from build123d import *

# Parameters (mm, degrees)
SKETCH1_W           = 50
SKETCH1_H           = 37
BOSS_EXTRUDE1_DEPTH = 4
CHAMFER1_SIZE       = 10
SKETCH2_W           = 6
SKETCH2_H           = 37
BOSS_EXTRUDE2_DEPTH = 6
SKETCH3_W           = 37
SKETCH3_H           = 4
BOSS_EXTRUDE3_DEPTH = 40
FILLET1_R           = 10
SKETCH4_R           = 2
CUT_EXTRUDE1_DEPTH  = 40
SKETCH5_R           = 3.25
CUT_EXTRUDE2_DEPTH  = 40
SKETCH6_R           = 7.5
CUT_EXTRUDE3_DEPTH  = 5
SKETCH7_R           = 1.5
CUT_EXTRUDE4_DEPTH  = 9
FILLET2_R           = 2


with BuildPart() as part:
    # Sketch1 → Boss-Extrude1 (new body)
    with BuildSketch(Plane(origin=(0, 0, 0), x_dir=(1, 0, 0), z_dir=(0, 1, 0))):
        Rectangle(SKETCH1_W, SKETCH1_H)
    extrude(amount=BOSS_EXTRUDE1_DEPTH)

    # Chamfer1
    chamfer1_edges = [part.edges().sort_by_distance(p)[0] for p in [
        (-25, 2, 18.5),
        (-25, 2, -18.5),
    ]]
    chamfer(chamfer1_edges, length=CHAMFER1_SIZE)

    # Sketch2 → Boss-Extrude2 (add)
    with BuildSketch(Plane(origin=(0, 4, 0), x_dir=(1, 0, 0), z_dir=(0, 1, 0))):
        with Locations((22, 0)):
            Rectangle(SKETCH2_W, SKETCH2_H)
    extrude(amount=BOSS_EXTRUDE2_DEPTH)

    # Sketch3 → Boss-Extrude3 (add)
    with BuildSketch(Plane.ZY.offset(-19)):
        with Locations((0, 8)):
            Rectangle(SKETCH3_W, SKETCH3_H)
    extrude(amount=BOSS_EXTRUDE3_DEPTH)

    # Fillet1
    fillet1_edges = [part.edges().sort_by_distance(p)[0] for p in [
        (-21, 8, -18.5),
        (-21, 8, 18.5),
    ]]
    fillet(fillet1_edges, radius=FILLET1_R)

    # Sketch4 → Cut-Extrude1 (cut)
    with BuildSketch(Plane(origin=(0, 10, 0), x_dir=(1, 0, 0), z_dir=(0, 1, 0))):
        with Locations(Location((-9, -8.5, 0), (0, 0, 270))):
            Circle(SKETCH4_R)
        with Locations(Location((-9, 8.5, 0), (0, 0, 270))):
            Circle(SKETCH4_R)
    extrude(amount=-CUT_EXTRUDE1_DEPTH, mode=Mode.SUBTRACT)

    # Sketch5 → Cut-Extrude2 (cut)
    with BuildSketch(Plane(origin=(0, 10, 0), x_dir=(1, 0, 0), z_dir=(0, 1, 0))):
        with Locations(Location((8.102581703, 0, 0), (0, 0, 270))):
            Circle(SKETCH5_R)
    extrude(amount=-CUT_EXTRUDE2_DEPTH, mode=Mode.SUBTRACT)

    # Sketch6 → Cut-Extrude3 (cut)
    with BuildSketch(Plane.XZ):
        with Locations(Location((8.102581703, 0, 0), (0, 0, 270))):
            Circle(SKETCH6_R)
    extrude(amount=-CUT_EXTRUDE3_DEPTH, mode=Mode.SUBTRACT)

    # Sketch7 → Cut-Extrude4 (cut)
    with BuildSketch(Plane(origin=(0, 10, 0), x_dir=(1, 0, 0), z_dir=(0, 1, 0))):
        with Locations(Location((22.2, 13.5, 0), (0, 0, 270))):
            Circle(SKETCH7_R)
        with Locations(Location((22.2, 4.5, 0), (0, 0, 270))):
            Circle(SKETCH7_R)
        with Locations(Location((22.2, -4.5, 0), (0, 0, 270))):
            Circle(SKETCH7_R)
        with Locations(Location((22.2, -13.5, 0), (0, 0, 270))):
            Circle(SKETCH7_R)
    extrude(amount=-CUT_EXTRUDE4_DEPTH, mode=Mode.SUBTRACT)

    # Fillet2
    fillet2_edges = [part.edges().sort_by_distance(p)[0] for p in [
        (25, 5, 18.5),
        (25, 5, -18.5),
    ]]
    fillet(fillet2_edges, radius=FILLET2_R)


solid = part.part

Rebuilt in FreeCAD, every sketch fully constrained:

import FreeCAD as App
import Part
import Sketcher


def edges_at(feature, points):
    """Names of the edges that pass closest to the given points."""
    edges = feature.Shape.Edges
    near = lambda p: min(range(len(edges)), key=lambda i: edges[i].distToShape(Part.Vertex(*p))[0])
    return sorted({f"Edge{near(p) + 1}" for p in points})

doc = App.newDocument("Part")
body = doc.addObject("PartDesign::Body", "Body")

sketch1 = doc.addObject("Sketcher::SketchObject", "Sketch")
body.addObject(sketch1)
sketch1.AttachmentSupport = (doc.XZ_Plane, [""])
sketch1.MapMode = "FlatFace"
sketch1.addGeometry(Part.LineSegment(App.Vector(-25, -18.5, 0), App.Vector(-25, 18.5, 0)), False)
sketch1.addGeometry(Part.LineSegment(App.Vector(-25, 18.5, 0), App.Vector(25, 18.5, 0)), False)
sketch1.addGeometry(Part.LineSegment(App.Vector(25, 18.5, 0), App.Vector(25, -18.5, 0)), False)
sketch1.addGeometry(Part.LineSegment(App.Vector(25, -18.5, 0), App.Vector(-25, -18.5, 0)), False)
sketch1.addConstraint(Sketcher.Constraint("Coincident", 0, 2, 1, 1))
sketch1.addConstraint(Sketcher.Constraint("Coincident", 1, 2, 2, 1))
sketch1.addConstraint(Sketcher.Constraint("Coincident", 2, 2, 3, 1))
sketch1.addConstraint(Sketcher.Constraint("Coincident", 3, 2, 0, 1))
sketch1.addConstraint(Sketcher.Constraint("Vertical", 0))
sketch1.addConstraint(Sketcher.Constraint("Horizontal", 1))
sketch1.addConstraint(Sketcher.Constraint("Vertical", 2))
sketch1.addConstraint(Sketcher.Constraint("Horizontal", 3))
sketch1.addConstraint(Sketcher.Constraint("Symmetric", 0, 2, 2, 2, -1, 1))
sketch1.addConstraint(Sketcher.Constraint("DistanceX", 1, 1, 1, 2, 50.0))
sketch1.addConstraint(Sketcher.Constraint("DistanceY", 0, 1, 0, 2, 37.0))
pad1 = doc.addObject("PartDesign::Pad", "Pad")
body.addObject(pad1)
pad1.Profile = sketch1
pad1.Length = 4
pad1.Reversed = True
doc.recompute()

chamfer = doc.addObject("PartDesign::Chamfer", "Chamfer")
body.addObject(chamfer)
chamfer.Base = (pad1, edges_at(pad1, [(-25, 2, 18.5), (-25, 2, -18.5)]))
chamfer.Size = 10

sketch2 = doc.addObject("Sketcher::SketchObject", "Sketch001")
body.addObject(sketch2)
sketch2.AttachmentSupport = (doc.XZ_Plane, [""])
sketch2.MapMode = "FlatFace"
sketch2.AttachmentOffset = App.Placement(App.Vector(0, 0, -4), App.Rotation())
sketch2.addGeometry(Part.LineSegment(App.Vector(19, -18.5, 0), App.Vector(19, 18.5, 0)), False)
sketch2.addGeometry(Part.LineSegment(App.Vector(19, 18.5, 0), App.Vector(25, 18.5, 0)), False)
sketch2.addGeometry(Part.LineSegment(App.Vector(25, 18.5, 0), App.Vector(25, -18.5, 0)), False)
sketch2.addGeometry(Part.LineSegment(App.Vector(25, -18.5, 0), App.Vector(19, -18.5, 0)), False)
sketch2.addConstraint(Sketcher.Constraint("Coincident", 0, 2, 1, 1))
sketch2.addConstraint(Sketcher.Constraint("Coincident", 1, 2, 2, 1))
sketch2.addConstraint(Sketcher.Constraint("Coincident", 2, 2, 3, 1))
sketch2.addConstraint(Sketcher.Constraint("Coincident", 3, 2, 0, 1))
sketch2.addConstraint(Sketcher.Constraint("Vertical", 0))
sketch2.addConstraint(Sketcher.Constraint("Horizontal", 1))
sketch2.addConstraint(Sketcher.Constraint("Vertical", 2))
sketch2.addConstraint(Sketcher.Constraint("Horizontal", 3))
sketch2.addConstraint(Sketcher.Constraint("DistanceX", 1, 1, 1, 2, 6.0))
sketch2.addConstraint(Sketcher.Constraint("DistanceY", 0, 1, 0, 2, 37.0))
sketch2.addConstraint(Sketcher.Constraint("DistanceX", -1, 1, 0, 2, 19.0))
sketch2.addConstraint(Sketcher.Constraint("DistanceY", -1, 1, 0, 2, 18.5))
pad2 = doc.addObject("PartDesign::Pad", "Pad001")
body.addObject(pad2)
pad2.Profile = sketch2
pad2.Length = 6
pad2.Reversed = True

sketch3 = doc.addObject("Sketcher::SketchObject", "Sketch002")
body.addObject(sketch3)
sketch3.AttachmentSupport = (doc.YZ_Plane, [""])
sketch3.MapMode = "FlatFace"
sketch3.AttachmentOffset = App.Placement(App.Vector(0, 0, 19), App.Rotation())
sketch3.addGeometry(Part.LineSegment(App.Vector(10, -18.5, 0), App.Vector(6, -18.5, 0)), False)
sketch3.addGeometry(Part.LineSegment(App.Vector(6, -18.5, 0), App.Vector(6, 18.5, 0)), False)
sketch3.addGeometry(Part.LineSegment(App.Vector(6, 18.5, 0), App.Vector(10, 18.5, 0)), False)
sketch3.addGeometry(Part.LineSegment(App.Vector(10, 18.5, 0), App.Vector(10, -18.5, 0)), False)
sketch3.addConstraint(Sketcher.Constraint("Coincident", 0, 2, 1, 1))
sketch3.addConstraint(Sketcher.Constraint("Coincident", 1, 2, 2, 1))
sketch3.addConstraint(Sketcher.Constraint("Coincident", 2, 2, 3, 1))
sketch3.addConstraint(Sketcher.Constraint("Coincident", 3, 2, 0, 1))
sketch3.addConstraint(Sketcher.Constraint("Horizontal", 0))
sketch3.addConstraint(Sketcher.Constraint("Vertical", 1))
sketch3.addConstraint(Sketcher.Constraint("Horizontal", 2))
sketch3.addConstraint(Sketcher.Constraint("Vertical", 3))
sketch3.addConstraint(Sketcher.Constraint("DistanceX", 0, 2, 0, 1, 4.0))
sketch3.addConstraint(Sketcher.Constraint("DistanceY", 1, 1, 1, 2, 37.0))
sketch3.addConstraint(Sketcher.Constraint("DistanceX", -1, 1, 0, 2, 6.0))
sketch3.addConstraint(Sketcher.Constraint("DistanceY", 0, 2, -1, 1, 18.5))
pad3 = doc.addObject("PartDesign::Pad", "Pad002")
body.addObject(pad3)
pad3.Profile = sketch3
pad3.Length = 40
pad3.Reversed = True
doc.recompute()

fillet = doc.addObject("PartDesign::Fillet", "Fillet")
body.addObject(fillet)
fillet.Base = (pad3, edges_at(pad3, [(-21, 8, -18.5), (-21, 8, 18.5)]))
fillet.Radius = 10

sketch4 = doc.addObject("Sketcher::SketchObject", "Sketch003")
body.addObject(sketch4)
sketch4.AttachmentSupport = (doc.XZ_Plane, [""])
sketch4.MapMode = "FlatFace"
sketch4.AttachmentOffset = App.Placement(App.Vector(0, 0, -10), App.Rotation())
sketch4.addGeometry(Part.Circle(App.Vector(-9, 8.5, 0), App.Vector(0, 0, 1), 2), False)
sketch4.addGeometry(Part.Circle(App.Vector(-9, -8.5, 0), App.Vector(0, 0, 1), 2), False)
sketch4.addConstraint(Sketcher.Constraint("Equal", 0, 1))
sketch4.addConstraint(Sketcher.Constraint("Symmetric", 0, 3, 1, 3, -1))
sketch4.addConstraint(Sketcher.Constraint("Diameter", 0, 4.0))
sketch4.addConstraint(Sketcher.Constraint("DistanceX", 0, 3, -1, 1, 9.0))
sketch4.addConstraint(Sketcher.Constraint("DistanceY", 1, 3, 0, 3, 17.0))
pocket1 = doc.addObject("PartDesign::Pocket", "Pocket")
body.addObject(pocket1)
pocket1.Profile = sketch4
pocket1.Length = 40
pocket1.Reversed = True

sketch5 = doc.addObject("Sketcher::SketchObject", "Sketch004")
body.addObject(sketch5)
sketch5.AttachmentSupport = (doc.XZ_Plane, [""])
sketch5.MapMode = "FlatFace"
sketch5.AttachmentOffset = App.Placement(App.Vector(0, 0, -10), App.Rotation())
sketch5.addGeometry(Part.Circle(App.Vector(8.102582, 0, 0), App.Vector(0, 0, 1), 3.25), False)
sketch5.addConstraint(Sketcher.Constraint("PointOnObject", 0, 3, -1))
sketch5.addConstraint(Sketcher.Constraint("Diameter", 0, 6.5))
sketch5.addConstraint(Sketcher.Constraint("DistanceX", -1, 1, 0, 3, 8.102582))
pocket2 = doc.addObject("PartDesign::Pocket", "Pocket001")
body.addObject(pocket2)
pocket2.Profile = sketch5
pocket2.Length = 40
pocket2.Reversed = True

sketch6 = doc.addObject("Sketcher::SketchObject", "Sketch005")
body.addObject(sketch6)
sketch6.AttachmentSupport = (doc.XZ_Plane, [""])
sketch6.MapMode = "FlatFace"
sketch6.addGeometry(Part.Circle(App.Vector(8.102582, 0, 0), App.Vector(0, 0, 1), 7.5), False)
sketch6.addConstraint(Sketcher.Constraint("PointOnObject", 0, 3, -1))
sketch6.addConstraint(Sketcher.Constraint("Diameter", 0, 15.0))
sketch6.addConstraint(Sketcher.Constraint("DistanceX", -1, 1, 0, 3, 8.102582))
pocket3 = doc.addObject("PartDesign::Pocket", "Pocket002")
body.addObject(pocket3)
pocket3.Profile = sketch6
pocket3.Length = 5

sketch7 = doc.addObject("Sketcher::SketchObject", "Sketch006")
body.addObject(sketch7)
sketch7.AttachmentSupport = (doc.XZ_Plane, [""])
sketch7.MapMode = "FlatFace"
sketch7.AttachmentOffset = App.Placement(App.Vector(0, 0, -10), App.Rotation())
sketch7.addGeometry(Part.Circle(App.Vector(22.2, -13.5, 0), App.Vector(0, 0, 1), 1.5), False)
sketch7.addGeometry(Part.Circle(App.Vector(22.2, -4.5, 0), App.Vector(0, 0, 1), 1.5), False)
sketch7.addGeometry(Part.Circle(App.Vector(22.2, 4.5, 0), App.Vector(0, 0, 1), 1.5), False)
sketch7.addGeometry(Part.Circle(App.Vector(22.2, 13.5, 0), App.Vector(0, 0, 1), 1.5), False)
sketch7.addConstraint(Sketcher.Constraint("Equal", 0, 1))
sketch7.addConstraint(Sketcher.Constraint("Equal", 1, 2))
sketch7.addConstraint(Sketcher.Constraint("Equal", 2, 3))
sketch7.addConstraint(Sketcher.Constraint("Symmetric", 1, 3, 2, 3, -1))
sketch7.addConstraint(Sketcher.Constraint("Symmetric", 0, 3, 3, 3, -1))
sketch7.addConstraint(Sketcher.Constraint("Vertical", 0, 3, 1, 3))
sketch7.addConstraint(Sketcher.Constraint("Diameter", 0, 3.0))
sketch7.addConstraint(Sketcher.Constraint("DistanceY", 0, 3, 1, 3, 9.0))
sketch7.addConstraint(Sketcher.Constraint("DistanceY", 1, 3, 2, 3, 9.0))
sketch7.addConstraint(Sketcher.Constraint("DistanceX", -1, 1, 0, 3, 22.2))
pocket4 = doc.addObject("PartDesign::Pocket", "Pocket003")
body.addObject(pocket4)
pocket4.Profile = sketch7
pocket4.Length = 9
pocket4.Reversed = True
doc.recompute()

fillet2 = doc.addObject("PartDesign::Fillet", "Fillet001")
body.addObject(fillet2)
fillet2.Base = (pocket4, edges_at(pocket4, [(25, 5, 18.5), (25, 5, -18.5)]))
fillet2.Radius = 2

doc.recompute()
